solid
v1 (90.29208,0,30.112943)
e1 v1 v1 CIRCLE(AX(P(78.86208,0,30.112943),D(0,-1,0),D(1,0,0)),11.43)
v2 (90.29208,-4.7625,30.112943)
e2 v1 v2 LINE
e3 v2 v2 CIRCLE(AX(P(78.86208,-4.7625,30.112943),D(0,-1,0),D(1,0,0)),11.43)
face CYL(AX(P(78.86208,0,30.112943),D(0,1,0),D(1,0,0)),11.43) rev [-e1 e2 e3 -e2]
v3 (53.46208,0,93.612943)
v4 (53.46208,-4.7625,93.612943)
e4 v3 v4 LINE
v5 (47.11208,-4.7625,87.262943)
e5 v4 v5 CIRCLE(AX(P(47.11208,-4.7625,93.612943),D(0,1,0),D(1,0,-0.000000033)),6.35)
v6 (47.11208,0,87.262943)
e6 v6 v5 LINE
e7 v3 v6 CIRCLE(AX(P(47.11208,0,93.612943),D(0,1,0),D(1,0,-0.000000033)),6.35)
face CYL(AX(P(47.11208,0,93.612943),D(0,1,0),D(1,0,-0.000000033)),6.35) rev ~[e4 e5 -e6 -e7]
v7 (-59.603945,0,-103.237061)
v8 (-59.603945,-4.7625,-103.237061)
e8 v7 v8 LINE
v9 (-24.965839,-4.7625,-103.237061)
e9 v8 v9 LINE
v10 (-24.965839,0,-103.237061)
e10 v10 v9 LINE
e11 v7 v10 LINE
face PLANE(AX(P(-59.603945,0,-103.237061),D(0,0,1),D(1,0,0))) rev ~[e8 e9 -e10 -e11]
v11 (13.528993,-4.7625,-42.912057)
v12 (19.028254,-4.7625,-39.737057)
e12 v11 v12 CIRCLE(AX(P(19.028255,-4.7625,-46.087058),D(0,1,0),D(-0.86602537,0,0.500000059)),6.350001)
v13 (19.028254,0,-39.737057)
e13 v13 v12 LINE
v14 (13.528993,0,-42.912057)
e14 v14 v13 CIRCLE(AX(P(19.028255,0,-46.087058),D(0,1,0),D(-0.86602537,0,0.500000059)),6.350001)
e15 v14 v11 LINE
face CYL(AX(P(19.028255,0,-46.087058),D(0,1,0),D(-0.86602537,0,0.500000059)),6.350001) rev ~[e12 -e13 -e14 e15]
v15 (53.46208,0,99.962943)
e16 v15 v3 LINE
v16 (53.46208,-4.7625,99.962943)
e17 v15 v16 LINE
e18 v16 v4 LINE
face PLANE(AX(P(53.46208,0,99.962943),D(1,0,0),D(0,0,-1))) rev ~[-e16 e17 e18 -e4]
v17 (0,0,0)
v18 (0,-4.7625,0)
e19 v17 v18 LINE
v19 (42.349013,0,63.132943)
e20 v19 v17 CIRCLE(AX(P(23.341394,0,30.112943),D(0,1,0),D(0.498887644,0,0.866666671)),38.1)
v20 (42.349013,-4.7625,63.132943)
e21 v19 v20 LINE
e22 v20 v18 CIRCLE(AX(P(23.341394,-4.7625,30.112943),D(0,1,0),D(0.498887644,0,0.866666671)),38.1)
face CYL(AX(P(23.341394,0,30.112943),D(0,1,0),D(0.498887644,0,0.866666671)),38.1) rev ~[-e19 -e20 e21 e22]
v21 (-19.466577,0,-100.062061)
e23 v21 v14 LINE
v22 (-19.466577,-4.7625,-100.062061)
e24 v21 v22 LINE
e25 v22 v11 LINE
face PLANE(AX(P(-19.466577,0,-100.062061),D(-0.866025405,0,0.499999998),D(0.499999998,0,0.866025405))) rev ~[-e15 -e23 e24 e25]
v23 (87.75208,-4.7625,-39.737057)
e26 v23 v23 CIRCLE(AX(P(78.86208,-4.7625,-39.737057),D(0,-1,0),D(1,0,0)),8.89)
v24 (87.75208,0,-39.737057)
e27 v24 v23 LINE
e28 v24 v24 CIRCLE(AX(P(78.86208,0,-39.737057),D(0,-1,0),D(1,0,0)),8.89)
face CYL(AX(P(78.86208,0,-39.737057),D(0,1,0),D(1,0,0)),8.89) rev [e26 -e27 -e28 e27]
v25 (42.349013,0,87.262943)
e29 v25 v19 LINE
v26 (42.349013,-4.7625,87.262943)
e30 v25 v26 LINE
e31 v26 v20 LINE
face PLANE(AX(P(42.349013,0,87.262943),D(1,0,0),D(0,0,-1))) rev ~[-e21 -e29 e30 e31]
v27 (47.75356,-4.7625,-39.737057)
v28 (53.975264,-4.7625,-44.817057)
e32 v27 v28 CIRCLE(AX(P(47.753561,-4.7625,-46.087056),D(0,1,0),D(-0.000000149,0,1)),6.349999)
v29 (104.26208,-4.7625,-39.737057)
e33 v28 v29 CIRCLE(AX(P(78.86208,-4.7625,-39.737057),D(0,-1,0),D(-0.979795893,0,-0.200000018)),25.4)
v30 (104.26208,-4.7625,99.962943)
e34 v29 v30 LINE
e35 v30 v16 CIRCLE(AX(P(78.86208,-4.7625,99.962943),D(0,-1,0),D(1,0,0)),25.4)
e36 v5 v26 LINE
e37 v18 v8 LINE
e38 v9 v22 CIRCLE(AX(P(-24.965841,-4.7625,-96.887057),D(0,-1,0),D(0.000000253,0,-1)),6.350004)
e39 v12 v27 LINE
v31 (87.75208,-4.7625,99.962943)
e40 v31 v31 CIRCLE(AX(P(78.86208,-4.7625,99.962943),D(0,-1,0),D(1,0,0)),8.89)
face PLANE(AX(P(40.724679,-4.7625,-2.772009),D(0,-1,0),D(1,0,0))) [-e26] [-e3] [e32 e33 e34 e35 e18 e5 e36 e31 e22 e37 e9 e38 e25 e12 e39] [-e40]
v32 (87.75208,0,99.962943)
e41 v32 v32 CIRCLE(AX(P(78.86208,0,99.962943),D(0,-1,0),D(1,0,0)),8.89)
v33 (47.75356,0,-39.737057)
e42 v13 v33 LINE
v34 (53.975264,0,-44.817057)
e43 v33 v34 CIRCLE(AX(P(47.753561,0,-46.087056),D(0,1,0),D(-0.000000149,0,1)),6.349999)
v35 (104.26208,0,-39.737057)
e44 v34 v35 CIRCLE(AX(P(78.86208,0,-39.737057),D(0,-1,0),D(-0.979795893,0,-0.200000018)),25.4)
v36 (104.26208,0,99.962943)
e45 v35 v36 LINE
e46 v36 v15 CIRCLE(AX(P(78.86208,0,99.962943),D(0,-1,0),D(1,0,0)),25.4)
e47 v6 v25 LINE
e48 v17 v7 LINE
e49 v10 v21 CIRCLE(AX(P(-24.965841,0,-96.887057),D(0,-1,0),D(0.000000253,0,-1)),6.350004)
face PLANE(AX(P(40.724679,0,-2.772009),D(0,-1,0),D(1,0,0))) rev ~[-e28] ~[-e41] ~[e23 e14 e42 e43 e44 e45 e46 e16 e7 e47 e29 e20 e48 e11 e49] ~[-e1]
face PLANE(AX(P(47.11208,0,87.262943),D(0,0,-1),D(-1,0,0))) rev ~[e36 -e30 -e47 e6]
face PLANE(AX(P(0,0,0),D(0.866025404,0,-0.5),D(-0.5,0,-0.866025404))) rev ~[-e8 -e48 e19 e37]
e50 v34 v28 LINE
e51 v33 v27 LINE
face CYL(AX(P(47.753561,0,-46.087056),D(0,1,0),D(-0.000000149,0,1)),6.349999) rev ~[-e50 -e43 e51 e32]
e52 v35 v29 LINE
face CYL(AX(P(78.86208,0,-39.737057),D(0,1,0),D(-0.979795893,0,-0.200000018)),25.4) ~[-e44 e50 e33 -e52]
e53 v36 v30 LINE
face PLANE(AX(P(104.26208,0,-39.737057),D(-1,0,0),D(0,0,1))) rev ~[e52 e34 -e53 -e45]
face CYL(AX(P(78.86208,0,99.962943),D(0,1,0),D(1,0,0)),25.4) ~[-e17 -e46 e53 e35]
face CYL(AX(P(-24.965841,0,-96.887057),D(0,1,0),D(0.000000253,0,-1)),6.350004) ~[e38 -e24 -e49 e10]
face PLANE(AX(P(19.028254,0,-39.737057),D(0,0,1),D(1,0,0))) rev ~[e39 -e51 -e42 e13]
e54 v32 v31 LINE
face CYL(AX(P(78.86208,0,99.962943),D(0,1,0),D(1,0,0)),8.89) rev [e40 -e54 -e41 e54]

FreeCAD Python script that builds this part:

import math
import FreeCAD as App
import Part
import Sketcher
from FreeCAD import Vector
Q = App.Units.Quantity

doc = App.newDocument("Part")
params = doc.addObject("Spreadsheet::Sheet", "Params")
for row, (alias, value) in enumerate([
    ("sketch1_radius", "1 in"),
    ("sketch1_diameter", "0.7 in"),
    ("sketch1_diameter2", "0.9 in"),
    ("sketch1_radius2", "1.5 in"),
    ("sketch1_radius3", "0.2500002 in"),
    ("pad1_length", "0.1875 in"),
], start=1):
    params.set(f"A{row}", alias)
    params.set(f"B{row}", "=" + value)
    params.setAlias(f"B{row}", alias)

body = doc.addObject("PartDesign::Body", "Body")

sketch1 = body.newObject("Sketcher::SketchObject", "Sketch")
sketch1.AttachmentSupport = (doc.getObject("XZ_Plane"), [""])
sketch1.MapMode = "FlatFace"
sketch1.addGeometry([
    Part.LineSegment(Vector(47.1, 87.3, 0), Vector(42.3, 87.3, 0)),
    Part.LineSegment(Vector(42.3, 87.3, 0), Vector(42.3, 63.1, 0)),
    Part.ArcOfCircle(Part.Circle(Vector(23.3, 30.1, 0), Vector(0, 0, 1), 38.1), math.radians(-128), math.radians(60)),
    Part.LineSegment(Vector(0, 0, 0), Vector(-59.6, -103.2, 0)),
    Part.LineSegment(Vector(-59.6, -103.2, 0), Vector(-25, -103.2, 0)),
    Part.ArcOfCircle(Part.Circle(Vector(-25, -96.9, 0), Vector(0, 0, 1), 6.4), math.radians(-90), math.radians(-30)),
    Part.LineSegment(Vector(-19.5, -100.1, 0), Vector(13.5, -42.9, 0)),
    Part.ArcOfCircle(Part.Circle(Vector(19, -46.1, 0), Vector(0, 0, 1), 6.4), math.radians(90), math.radians(150)),
    Part.LineSegment(Vector(19, -39.7, 0), Vector(47.8, -39.7, 0)),
    Part.ArcOfCircle(Part.Circle(Vector(47.8, -46.1, 0), Vector(0, 0, 1), 6.3), math.radians(12), math.radians(90)),
    Part.ArcOfCircle(Part.Circle(Vector(78.9, -39.7, 0), Vector(0, 0, 1), 25.4), math.radians(-168), math.radians(0)),
    Part.LineSegment(Vector(104.3, -39.7, 0), Vector(104.3, 100, 0)),
    Part.ArcOfCircle(Part.Circle(Vector(78.9, 100, 0), Vector(0, 0, 1), 25.4), math.radians(0), math.radians(180)),
    Part.LineSegment(Vector(53.5, 100, 0), Vector(53.5, 93.6, 0)),
    Part.ArcOfCircle(Part.Circle(Vector(47.1, 93.6, 0), Vector(0, 0, 1), 6.4), math.radians(-90), math.radians(0)),
    Part.Circle(Vector(78.9, -39.7, 0), Vector(0, 0, 1), 8.9),
    Part.Circle(Vector(78.9, 30.1, 0), Vector(0, 0, 1), 11.4),
    Part.Circle(Vector(78.9, 100, 0), Vector(0, 0, 1), 8.9),
], False)
sketch1.addConstraint([
    Sketcher.Constraint("Coincident", 0, 2, 1, 1),
    Sketcher.Constraint("Coincident", 1, 2, 2, 2),
    Sketcher.Constraint("Coincident", 2, 1, 3, 1),
    Sketcher.Constraint("Coincident", 3, 2, 4, 1),
    Sketcher.Constraint("Tangent", 4, 2, 5, 1),
    Sketcher.Constraint("Tangent", 5, 2, 6, 1),
    Sketcher.Constraint("Tangent", 6, 2, 7, 2),
    Sketcher.Constraint("Tangent", 7, 1, 8, 1),
    Sketcher.Constraint("Tangent", 8, 2, 9, 2),
    Sketcher.Constraint("Tangent", 9, 1, 10, 1),
    Sketcher.Constraint("Tangent", 10, 2, 11, 1),
    Sketcher.Constraint("Tangent", 11, 2, 12, 1),
    Sketcher.Constraint("Tangent", 12, 2, 13, 1),
    Sketcher.Constraint("Tangent", 13, 2, 14, 2),
    Sketcher.Constraint("Tangent", 14, 1, 0, 1),
    Sketcher.Constraint("Horizontal", 0),
    Sketcher.Constraint("Vertical", 1),
    Sketcher.Constraint("Horizontal", 4),
    Sketcher.Constraint("Horizontal", 8),
    Sketcher.Constraint("Vertical", 11),
    Sketcher.Constraint("Vertical", 13),
    Sketcher.Constraint("Coincident", 2, 1, -1, 1),
    Sketcher.Constraint("Coincident", 15, 3, 10, 3),
    Sketcher.Constraint("Coincident", 17, 3, 12, 3),
    Sketcher.Constraint("Equal", 7, 9),
    Sketcher.Constraint("Equal", 10, 12),
    Sketcher.Constraint("Equal", 9, 14),
    Sketcher.Constraint("Equal", 15, 17),
    Sketcher.Constraint("Parallel", 3, 6),
    Sketcher.Constraint("Horizontal", 2, 3, 16, 3),
    Sketcher.Constraint("Horizontal", 15, 3, 7, 1),
    Sketcher.Constraint("Vertical", 15, 3, 16, 3),
    Sketcher.Constraint("Radius", 10, Q("1 in")),
    Sketcher.Constraint("Diameter", 15, Q("0.7 in")),
    Sketcher.Constraint("Diameter", 16, Q("0.9 in")),
    Sketcher.Constraint("Radius", 2, Q("1.5 in")),
    Sketcher.Constraint("Radius", 5, Q("0.2500002 in")),
    Sketcher.Constraint("Radius", 7, Q("0.25 in")),
    Sketcher.Constraint("DistanceY", 11, 1, 11, 2, Q("5.5 in")),
    Sketcher.Constraint("Angle", 3, Q("-120 deg")),
    Sketcher.Constraint("DistanceY", 5, 3, 2, 3, Q("5 in")),
    Sketcher.Constraint("DistanceY", 5, 3, 7, 3, Q("2 in")),
    Sketcher.Constraint("DistanceY", 1, 2, 1, 1, Q("0.95 in")),
    Sketcher.Constraint("DistanceY", 13, 2, 13, 1, Q("0.25 in")),
    Sketcher.Constraint("DistanceX", 5, 3, 9, 3, 72.719402),
    Sketcher.Constraint("DistanceX", 3, 2, 7, 3, 78.6322),
    Sketcher.Constraint("Distance", 3, 119.20789),
])
sketch1.setExpression("Constraints[32]", "Params.sketch1_radius")
sketch1.setExpression("Constraints[33]", "Params.sketch1_diameter")
sketch1.setExpression("Constraints[34]", "Params.sketch1_diameter2")
sketch1.setExpression("Constraints[35]", "Params.sketch1_radius2")
sketch1.setExpression("Constraints[36]", "Params.sketch1_radius3")
pad1 = body.newObject("PartDesign::Pad", "Pad")
pad1.Profile = sketch1
pad1.setExpression("Length", "Params.pad1_length")

doc.recompute()
